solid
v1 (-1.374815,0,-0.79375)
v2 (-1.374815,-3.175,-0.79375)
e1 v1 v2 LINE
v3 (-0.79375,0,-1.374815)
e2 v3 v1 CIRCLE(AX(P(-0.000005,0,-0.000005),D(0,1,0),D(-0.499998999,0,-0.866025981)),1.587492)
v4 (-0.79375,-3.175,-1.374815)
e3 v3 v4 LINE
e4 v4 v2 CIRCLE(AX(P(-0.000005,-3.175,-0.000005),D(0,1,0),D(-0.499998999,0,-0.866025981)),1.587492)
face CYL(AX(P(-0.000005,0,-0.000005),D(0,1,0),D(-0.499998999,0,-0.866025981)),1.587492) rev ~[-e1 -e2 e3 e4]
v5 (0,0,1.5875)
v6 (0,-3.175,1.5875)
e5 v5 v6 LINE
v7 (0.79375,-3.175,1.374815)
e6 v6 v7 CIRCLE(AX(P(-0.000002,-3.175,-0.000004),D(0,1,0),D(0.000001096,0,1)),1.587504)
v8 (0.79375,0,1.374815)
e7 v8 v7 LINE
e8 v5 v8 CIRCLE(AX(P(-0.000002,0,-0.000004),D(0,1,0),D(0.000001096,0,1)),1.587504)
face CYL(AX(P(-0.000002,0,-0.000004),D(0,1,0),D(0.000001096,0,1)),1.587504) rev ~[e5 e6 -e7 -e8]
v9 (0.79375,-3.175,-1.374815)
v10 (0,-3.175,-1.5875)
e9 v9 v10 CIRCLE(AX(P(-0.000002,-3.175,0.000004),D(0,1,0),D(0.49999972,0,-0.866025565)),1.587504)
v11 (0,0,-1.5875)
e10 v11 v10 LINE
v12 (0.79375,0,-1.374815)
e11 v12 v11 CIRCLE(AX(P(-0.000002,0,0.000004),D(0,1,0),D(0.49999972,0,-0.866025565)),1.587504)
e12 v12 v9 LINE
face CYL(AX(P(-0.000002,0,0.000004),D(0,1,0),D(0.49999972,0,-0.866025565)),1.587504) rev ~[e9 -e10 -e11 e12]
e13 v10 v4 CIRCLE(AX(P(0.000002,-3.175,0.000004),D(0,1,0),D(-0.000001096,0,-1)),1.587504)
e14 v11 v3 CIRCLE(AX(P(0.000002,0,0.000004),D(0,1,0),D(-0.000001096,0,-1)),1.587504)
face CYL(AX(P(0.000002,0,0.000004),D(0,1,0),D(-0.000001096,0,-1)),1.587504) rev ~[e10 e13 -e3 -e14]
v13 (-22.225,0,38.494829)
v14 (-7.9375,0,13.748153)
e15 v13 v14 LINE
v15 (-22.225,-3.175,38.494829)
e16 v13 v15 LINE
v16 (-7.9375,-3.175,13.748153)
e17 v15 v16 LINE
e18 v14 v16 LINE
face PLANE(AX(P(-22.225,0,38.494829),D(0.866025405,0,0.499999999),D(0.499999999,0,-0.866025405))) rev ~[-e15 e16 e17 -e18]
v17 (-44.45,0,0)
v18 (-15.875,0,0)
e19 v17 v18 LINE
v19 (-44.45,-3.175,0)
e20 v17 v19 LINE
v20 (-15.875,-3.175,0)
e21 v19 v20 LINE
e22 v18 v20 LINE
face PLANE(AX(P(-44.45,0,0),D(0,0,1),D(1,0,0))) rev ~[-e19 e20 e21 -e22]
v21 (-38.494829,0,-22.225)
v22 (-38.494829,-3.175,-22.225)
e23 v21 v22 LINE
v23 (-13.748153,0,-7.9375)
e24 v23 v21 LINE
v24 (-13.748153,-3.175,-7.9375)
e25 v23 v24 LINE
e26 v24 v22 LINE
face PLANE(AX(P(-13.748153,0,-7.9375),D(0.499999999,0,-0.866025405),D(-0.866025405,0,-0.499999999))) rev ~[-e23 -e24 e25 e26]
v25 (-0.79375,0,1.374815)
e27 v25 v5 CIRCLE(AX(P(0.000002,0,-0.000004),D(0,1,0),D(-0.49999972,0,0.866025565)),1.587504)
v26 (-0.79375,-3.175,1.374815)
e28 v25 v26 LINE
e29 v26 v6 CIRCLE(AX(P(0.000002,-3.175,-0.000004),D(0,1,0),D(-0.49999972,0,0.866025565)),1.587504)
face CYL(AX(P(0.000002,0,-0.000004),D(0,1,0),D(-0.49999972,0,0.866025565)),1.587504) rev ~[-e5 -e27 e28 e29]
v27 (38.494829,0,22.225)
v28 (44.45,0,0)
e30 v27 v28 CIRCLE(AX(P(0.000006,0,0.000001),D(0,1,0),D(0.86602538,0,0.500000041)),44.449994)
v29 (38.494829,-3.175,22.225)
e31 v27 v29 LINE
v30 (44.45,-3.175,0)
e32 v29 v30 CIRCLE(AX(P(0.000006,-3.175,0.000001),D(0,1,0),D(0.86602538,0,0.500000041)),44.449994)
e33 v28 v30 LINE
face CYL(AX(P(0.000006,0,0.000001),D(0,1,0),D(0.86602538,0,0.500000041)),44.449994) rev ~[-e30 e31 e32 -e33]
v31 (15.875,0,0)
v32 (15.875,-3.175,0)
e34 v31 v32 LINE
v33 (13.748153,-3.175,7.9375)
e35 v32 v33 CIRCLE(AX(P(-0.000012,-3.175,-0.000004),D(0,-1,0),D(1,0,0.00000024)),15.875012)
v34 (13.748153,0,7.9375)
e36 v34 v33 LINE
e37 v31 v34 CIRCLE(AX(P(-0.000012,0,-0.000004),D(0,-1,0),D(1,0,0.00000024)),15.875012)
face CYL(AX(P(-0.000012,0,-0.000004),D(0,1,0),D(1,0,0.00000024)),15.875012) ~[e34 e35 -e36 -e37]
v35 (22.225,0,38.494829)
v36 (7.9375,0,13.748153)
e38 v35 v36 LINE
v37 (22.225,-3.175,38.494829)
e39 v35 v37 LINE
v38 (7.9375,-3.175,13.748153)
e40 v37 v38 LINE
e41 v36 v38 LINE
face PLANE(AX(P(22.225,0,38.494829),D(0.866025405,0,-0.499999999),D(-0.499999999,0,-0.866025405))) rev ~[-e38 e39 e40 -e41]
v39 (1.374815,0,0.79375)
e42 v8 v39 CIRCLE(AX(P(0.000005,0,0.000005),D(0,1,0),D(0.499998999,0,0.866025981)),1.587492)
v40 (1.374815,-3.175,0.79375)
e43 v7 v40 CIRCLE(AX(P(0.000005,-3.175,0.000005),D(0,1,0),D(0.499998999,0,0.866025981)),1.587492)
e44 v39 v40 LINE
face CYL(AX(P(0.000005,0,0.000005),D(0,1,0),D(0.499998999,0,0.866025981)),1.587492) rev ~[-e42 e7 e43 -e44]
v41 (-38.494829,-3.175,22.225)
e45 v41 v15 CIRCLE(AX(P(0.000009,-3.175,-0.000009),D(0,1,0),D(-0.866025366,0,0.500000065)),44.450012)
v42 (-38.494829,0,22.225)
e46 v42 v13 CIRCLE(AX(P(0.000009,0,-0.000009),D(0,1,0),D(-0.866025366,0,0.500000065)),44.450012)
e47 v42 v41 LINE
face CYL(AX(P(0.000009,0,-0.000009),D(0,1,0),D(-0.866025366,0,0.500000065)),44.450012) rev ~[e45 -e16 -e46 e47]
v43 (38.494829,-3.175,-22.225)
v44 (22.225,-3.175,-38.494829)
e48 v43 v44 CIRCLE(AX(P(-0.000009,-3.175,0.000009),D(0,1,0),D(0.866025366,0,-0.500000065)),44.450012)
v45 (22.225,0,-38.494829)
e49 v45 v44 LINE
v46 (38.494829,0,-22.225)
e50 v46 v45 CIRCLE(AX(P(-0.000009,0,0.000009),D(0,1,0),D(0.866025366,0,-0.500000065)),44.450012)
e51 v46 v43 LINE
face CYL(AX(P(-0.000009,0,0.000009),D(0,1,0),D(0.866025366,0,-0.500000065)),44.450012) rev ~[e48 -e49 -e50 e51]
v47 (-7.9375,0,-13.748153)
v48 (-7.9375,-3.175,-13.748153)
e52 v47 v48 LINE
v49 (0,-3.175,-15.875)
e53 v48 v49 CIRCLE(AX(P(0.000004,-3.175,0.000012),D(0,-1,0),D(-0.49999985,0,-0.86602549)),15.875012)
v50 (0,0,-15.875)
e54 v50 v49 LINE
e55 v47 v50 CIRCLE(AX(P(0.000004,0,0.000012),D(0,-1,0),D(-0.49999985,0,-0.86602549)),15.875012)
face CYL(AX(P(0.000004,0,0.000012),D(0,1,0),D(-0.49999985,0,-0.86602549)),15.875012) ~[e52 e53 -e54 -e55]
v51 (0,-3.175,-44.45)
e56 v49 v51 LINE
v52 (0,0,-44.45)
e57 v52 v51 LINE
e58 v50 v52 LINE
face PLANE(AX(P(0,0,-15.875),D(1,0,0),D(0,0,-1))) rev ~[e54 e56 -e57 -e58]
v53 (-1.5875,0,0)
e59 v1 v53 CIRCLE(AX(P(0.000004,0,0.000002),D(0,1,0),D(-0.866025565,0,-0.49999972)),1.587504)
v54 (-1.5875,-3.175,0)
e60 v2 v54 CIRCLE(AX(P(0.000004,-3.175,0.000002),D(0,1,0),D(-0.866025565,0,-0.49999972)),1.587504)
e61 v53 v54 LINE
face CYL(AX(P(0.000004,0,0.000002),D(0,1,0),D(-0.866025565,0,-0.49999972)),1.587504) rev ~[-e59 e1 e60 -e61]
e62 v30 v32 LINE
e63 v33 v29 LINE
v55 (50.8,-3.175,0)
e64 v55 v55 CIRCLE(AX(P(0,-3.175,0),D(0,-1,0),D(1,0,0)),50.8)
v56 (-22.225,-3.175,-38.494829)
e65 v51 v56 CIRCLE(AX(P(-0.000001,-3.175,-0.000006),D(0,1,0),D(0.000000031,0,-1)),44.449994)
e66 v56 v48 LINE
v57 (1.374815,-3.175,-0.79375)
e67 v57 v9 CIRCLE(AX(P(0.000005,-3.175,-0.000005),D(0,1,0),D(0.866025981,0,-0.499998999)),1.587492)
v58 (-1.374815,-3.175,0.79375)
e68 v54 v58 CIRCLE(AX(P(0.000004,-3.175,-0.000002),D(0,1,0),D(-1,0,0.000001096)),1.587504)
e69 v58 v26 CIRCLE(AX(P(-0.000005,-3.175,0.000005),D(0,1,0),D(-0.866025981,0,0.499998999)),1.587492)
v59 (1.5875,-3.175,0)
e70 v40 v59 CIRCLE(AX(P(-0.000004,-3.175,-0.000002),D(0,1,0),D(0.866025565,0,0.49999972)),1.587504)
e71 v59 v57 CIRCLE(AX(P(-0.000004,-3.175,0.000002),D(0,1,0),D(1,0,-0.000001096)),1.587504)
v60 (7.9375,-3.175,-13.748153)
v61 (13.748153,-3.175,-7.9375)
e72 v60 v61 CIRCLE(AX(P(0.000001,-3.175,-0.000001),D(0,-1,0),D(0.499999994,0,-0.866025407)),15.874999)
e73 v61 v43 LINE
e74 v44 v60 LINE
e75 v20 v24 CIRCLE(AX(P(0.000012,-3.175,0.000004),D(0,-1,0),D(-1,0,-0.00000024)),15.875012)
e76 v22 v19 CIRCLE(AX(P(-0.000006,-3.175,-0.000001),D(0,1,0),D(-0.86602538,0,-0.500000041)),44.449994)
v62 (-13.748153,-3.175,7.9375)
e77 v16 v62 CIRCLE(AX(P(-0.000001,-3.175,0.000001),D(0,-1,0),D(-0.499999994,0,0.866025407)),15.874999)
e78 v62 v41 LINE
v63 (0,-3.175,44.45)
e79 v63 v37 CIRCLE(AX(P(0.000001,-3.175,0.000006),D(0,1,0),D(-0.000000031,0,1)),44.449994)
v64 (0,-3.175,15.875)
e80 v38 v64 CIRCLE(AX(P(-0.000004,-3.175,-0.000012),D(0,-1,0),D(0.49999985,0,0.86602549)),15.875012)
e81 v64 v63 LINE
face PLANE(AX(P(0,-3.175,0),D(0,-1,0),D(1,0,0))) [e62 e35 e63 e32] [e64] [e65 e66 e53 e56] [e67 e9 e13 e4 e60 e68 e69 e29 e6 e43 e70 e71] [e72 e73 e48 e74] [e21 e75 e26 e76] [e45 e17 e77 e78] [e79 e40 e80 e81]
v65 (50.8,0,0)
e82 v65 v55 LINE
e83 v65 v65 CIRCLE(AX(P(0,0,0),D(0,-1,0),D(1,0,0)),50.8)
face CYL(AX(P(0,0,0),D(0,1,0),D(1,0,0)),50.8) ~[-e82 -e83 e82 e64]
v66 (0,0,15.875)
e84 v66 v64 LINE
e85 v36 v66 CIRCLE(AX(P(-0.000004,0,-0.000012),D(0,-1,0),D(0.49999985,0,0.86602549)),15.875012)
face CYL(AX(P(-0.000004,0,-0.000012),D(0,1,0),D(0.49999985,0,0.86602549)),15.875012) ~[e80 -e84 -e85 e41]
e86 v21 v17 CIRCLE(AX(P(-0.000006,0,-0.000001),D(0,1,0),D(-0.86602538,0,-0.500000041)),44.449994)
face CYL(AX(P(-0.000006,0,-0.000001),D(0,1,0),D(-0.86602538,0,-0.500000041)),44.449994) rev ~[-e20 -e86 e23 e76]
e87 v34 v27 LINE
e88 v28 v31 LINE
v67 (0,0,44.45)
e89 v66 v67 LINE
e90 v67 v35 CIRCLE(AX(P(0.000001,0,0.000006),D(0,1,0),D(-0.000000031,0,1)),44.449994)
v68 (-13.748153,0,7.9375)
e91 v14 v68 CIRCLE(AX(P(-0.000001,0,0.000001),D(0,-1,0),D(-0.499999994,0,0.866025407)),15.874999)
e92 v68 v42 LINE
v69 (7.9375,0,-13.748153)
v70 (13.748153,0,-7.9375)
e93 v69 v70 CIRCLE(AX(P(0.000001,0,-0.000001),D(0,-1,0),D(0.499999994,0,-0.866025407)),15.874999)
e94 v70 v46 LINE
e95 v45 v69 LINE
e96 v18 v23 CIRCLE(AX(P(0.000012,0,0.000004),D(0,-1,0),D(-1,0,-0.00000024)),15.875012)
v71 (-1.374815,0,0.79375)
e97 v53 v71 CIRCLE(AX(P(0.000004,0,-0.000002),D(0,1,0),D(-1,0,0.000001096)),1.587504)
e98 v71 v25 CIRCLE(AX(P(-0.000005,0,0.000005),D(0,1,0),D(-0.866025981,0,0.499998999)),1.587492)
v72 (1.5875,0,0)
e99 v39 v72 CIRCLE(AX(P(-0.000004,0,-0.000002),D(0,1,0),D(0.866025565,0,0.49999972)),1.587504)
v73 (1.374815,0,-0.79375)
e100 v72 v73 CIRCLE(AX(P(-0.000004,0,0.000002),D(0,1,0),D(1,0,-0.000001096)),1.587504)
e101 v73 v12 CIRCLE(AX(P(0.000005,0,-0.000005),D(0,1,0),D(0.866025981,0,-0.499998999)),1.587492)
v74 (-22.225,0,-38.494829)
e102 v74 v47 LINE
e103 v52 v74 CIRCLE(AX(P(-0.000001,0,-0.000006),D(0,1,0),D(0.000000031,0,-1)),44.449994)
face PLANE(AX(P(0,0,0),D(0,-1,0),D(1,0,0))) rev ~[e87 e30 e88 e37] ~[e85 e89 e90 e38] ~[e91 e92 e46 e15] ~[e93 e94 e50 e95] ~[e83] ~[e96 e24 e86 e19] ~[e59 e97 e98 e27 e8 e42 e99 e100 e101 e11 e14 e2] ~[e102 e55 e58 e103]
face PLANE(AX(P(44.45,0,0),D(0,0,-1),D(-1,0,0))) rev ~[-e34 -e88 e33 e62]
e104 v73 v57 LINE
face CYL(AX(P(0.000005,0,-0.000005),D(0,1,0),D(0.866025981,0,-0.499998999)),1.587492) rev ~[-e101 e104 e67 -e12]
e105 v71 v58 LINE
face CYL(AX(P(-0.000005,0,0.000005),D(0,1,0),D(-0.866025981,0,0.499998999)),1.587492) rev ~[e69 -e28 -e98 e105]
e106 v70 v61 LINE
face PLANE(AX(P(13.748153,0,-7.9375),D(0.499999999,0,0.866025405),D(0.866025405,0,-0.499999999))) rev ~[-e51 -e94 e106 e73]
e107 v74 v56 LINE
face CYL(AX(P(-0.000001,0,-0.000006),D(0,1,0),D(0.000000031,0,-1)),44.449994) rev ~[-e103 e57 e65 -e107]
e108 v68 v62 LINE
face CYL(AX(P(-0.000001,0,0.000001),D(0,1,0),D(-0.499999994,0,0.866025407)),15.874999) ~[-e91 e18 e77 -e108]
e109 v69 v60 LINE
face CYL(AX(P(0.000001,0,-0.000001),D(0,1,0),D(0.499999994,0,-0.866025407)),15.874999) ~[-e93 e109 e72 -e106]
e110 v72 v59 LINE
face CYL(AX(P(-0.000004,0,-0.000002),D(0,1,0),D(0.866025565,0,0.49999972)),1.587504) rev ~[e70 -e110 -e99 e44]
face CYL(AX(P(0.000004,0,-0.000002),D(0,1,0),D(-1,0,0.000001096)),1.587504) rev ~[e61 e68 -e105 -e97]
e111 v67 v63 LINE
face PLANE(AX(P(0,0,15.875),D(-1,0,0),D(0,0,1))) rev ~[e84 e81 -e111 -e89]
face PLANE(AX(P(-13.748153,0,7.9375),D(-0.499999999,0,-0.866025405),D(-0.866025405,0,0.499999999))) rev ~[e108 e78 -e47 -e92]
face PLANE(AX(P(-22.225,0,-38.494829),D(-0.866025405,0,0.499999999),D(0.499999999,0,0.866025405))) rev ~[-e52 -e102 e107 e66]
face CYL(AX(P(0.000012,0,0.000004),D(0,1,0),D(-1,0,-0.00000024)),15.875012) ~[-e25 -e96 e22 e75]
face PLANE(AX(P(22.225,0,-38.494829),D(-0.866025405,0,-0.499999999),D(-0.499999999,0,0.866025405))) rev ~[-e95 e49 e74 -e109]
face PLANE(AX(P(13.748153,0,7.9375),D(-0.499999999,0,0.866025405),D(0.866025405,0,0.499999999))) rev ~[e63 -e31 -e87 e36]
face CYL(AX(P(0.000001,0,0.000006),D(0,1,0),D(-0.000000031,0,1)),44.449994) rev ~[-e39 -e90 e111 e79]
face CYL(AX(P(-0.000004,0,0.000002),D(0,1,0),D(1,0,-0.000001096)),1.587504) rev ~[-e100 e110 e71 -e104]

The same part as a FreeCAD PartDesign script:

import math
import FreeCAD as App
import Part
import Sketcher
Q = App.Units.Quantity

doc = App.newDocument("Part")
body = doc.addObject("PartDesign::Body", "Body")

sketch1 = body.newObject("Sketcher::SketchObject", "Sketch")
sketch1.AttachmentSupport = (doc.getObject("XZ_Plane"), [""])
sketch1.MapMode = "FlatFace"
sketch1.addGeometry([
    Part.Circle(App.Vector(0, 0, 0), App.Vector(0, 0, 1), 50.8),
    Part.LineSegment(App.Vector(-22.225, -38.494829, 0), App.Vector(-7.9375, -13.748153, 0)),
    Part.ArcOfCircle(Part.Circle(App.Vector(0.000004, 0.000012, 0), App.Vector(0, 0, 1), 15.875012), math.radians(-119.99999), math.radians(-90.000014)),
    Part.LineSegment(App.Vector(0, -15.875, 0), App.Vector(0, -44.45, 0)),
    Part.ArcOfCircle(Part.Circle(App.Vector(-0.000001, -0.000006, 0), App.Vector(0, 0, 1), 44.449994), math.radians(-120.000003), math.radians(-89.999998)),
    Part.LineSegment(App.Vector(-44.45, 0, 0), App.Vector(-15.875, 0, 0)),
    Part.ArcOfCircle(Part.Circle(App.Vector(0.000012, 0.000004, 0), App.Vector(0, 0, 1), 15.875012), math.radians(-179.999986), math.radians(-150.00001)),
    Part.LineSegment(App.Vector(-13.748153, -7.9375, 0), App.Vector(-38.494829, -22.225, 0)),
    Part.ArcOfCircle(Part.Circle(App.Vector(-0.000006, -0.000001, 0), App.Vector(0, 0, 1), 44.449994), math.radians(179.999998), math.radians(210.000003)),
    Part.LineSegment(App.Vector(22.225, -38.494829, 0), App.Vector(7.9375, -13.748153, 0)),
    Part.ArcOfCircle(Part.Circle(App.Vector(0.000001, -0.000001, 0), App.Vector(0, 0, 1), 15.874999), math.radians(-60), math.radians(-30)),
    Part.LineSegment(App.Vector(13.748153, -7.9375, 0), App.Vector(38.494829, -22.225, 0)),
    Part.ArcOfCircle(Part.Circle(App.Vector(-0.000009, 0.000009, 0), App.Vector(0, 0, 1), 44.450012), math.radians(-59.999996), math.radians(-30.000004)),
    Part.LineSegment(App.Vector(-13.748153, 7.9375, 0), App.Vector(-38.494829, 22.225, 0)),
    Part.ArcOfCircle(Part.Circle(App.Vector(0.000009, -0.000009, 0), App.Vector(0, 0, 1), 44.450012), math.radians(120.000004), math.radians(149.999996)),
    Part.LineSegment(App.Vector(-22.225, 38.494829, 0), App.Vector(-7.9375, 13.748153, 0)),
    Part.ArcOfCircle(Part.Circle(App.Vector(-0.000001, 0.000001, 0), App.Vector(0, 0, 1), 15.874999), math.radians(120), math.radians(150)),
    Part.ArcOfCircle(Part.Circle(App.Vector(0.000005, 0.000005, 0), App.Vector(0, 0, 1), 1.587492), math.radians(29.999934), math.radians(60.000066)),
    Part.ArcOfCircle(Part.Circle(App.Vector(-0.000004, -0.000002, 0), App.Vector(0, 0, 1), 1.587504), math.radians(0.000063), math.radians(29.999981)),
    Part.ArcOfCircle(Part.Circle(App.Vector(-0.000004, 0.000002, 0), App.Vector(0, 0, 1), 1.587504), math.radians(-29.999981), math.radians(-0.000063)),
    Part.ArcOfCircle(Part.Circle(App.Vector(0.000005, -0.000005, 0), App.Vector(0, 0, 1), 1.587492), math.radians(-60.000066), math.radians(-29.999934)),
    Part.ArcOfCircle(Part.Circle(App.Vector(-0.000002, 0.000004, 0), App.Vector(0, 0, 1), 1.587504), math.radians(-89.999937), math.radians(-60.000019)),
    Part.ArcOfCircle(Part.Circle(App.Vector(0.000002, 0.000004, 0), App.Vector(0, 0, 1), 1.587504), math.radians(-119.999981), math.radians(-90.000063)),
    Part.ArcOfCircle(Part.Circle(App.Vector(-0.000005, -0.000005, 0), App.Vector(0, 0, 1), 1.587492), math.radians(-150.000066), math.radians(-119.999934)),
    Part.ArcOfCircle(Part.Circle(App.Vector(0.000004, 0.000002, 0), App.Vector(0, 0, 1), 1.587504), math.radians(-179.999937), math.radians(-150.000019)),
    Part.ArcOfCircle(Part.Circle(App.Vector(0.000004, -0.000002, 0), App.Vector(0, 0, 1), 1.587504), math.radians(150.000019), math.radians(179.999937)),
    Part.ArcOfCircle(Part.Circle(App.Vector(-0.000005, 0.000005, 0), App.Vector(0, 0, 1), 1.587492), math.radians(119.999934), math.radians(150.000066)),
    Part.ArcOfCircle(Part.Circle(App.Vector(0.000002, -0.000004, 0), App.Vector(0, 0, 1), 1.587504), math.radians(90.000063), math.radians(119.999981)),
    Part.ArcOfCircle(Part.Circle(App.Vector(-0.000002, -0.000004, 0), App.Vector(0, 0, 1), 1.587504), math.radians(60.000019), math.radians(89.999937)),
    Part.LineSegment(App.Vector(44.45, 0, 0), App.Vector(15.875, 0, 0)),
    Part.ArcOfCircle(Part.Circle(App.Vector(-0.000012, -0.000004, 0), App.Vector(0, 0, 1), 15.875012), math.radians(0.000014), math.radians(29.99999)),
    Part.LineSegment(App.Vector(13.748153, 7.9375, 0), App.Vector(38.494829, 22.225, 0)),
    Part.ArcOfCircle(Part.Circle(App.Vector(0.000006, 0.000001, 0), App.Vector(0, 0, 1), 44.449994), math.radians(-0.000002), math.radians(30.000003)),
    Part.LineSegment(App.Vector(22.225, 38.494829, 0), App.Vector(7.9375, 13.748153, 0)),
    Part.ArcOfCircle(Part.Circle(App.Vector(-0.000004, -0.000012, 0), App.Vector(0, 0, 1), 15.875012), math.radians(60.00001), math.radians(89.999986)),
    Part.LineSegment(App.Vector(0, 15.875, 0), App.Vector(0, 44.45, 0)),
    Part.ArcOfCircle(Part.Circle(App.Vector(0.000001, 0.000006, 0), App.Vector(0, 0, 1), 44.449994), math.radians(59.999997), math.radians(90.000002)),
], False)
sketch1.addConstraint([
    Sketcher.Constraint("Coincident", 1, 2, 2, 1),
    Sketcher.Constraint("Coincident", 2, 2, 3, 1),
    Sketcher.Constraint("Coincident", 3, 2, 4, 2),
    Sketcher.Constraint("Coincident", 4, 1, 1, 1),
    Sketcher.Constraint("Coincident", 5, 2, 6, 1),
    Sketcher.Constraint("Coincident", 6, 2, 7, 1),
    Sketcher.Constraint("Coincident", 7, 2, 8, 2),
    Sketcher.Constraint("Coincident", 8, 1, 5, 1),
    Sketcher.Constraint("Coincident", 9, 2, 10, 1),
    Sketcher.Constraint("Coincident", 10, 2, 11, 1),
    Sketcher.Constraint("Coincident", 11, 2, 12, 2),
    Sketcher.Constraint("Coincident", 12, 1, 9, 1),
    Sketcher.Constraint("Coincident", 13, 2, 14, 2),
    Sketcher.Constraint("Coincident", 14, 1, 15, 1),
    Sketcher.Constraint("Coincident", 15, 2, 16, 1),
    Sketcher.Constraint("Coincident", 16, 2, 13, 1),
    Sketcher.Constraint("Coincident", 17, 1, 18, 2),
    Sketcher.Constraint("Coincident", 18, 1, 19, 2),
    Sketcher.Constraint("Coincident", 19, 1, 20, 2),
    Sketcher.Constraint("Coincident", 20, 1, 21, 2),
    Sketcher.Constraint("Coincident", 21, 1, 22, 2),
    Sketcher.Constraint("Coincident", 22, 1, 23, 2),
    Sketcher.Constraint("Coincident", 23, 1, 24, 2),
    Sketcher.Constraint("Coincident", 24, 1, 25, 2),
    Sketcher.Constraint("Coincident", 25, 1, 26, 2),
    Sketcher.Constraint("Coincident", 26, 1, 27, 2),
    Sketcher.Constraint("Coincident", 27, 1, 28, 2),
    Sketcher.Constraint("Coincident", 28, 1, 17, 2),
    Sketcher.Constraint("Coincident", 29, 2, 30, 1),
    Sketcher.Constraint("Coincident", 30, 2, 31, 1),
    Sketcher.Constraint("Coincident", 31, 2, 32, 2),
    Sketcher.Constraint("Coincident", 32, 1, 29, 1),
    Sketcher.Constraint("Coincident", 33, 2, 34, 1),
    Sketcher.Constraint("Coincident", 34, 2, 35, 1),
    Sketcher.Constraint("Coincident", 35, 2, 36, 2),
    Sketcher.Constraint("Coincident", 36, 1, 33, 1),
    Sketcher.Constraint("Vertical", 3),
    Sketcher.Constraint("Horizontal", 5),
    Sketcher.Constraint("Horizontal", 29),
    Sketcher.Constraint("Vertical", 35),
    Sketcher.Constraint("Coincident", 0, 3, -1, 1),
    Sketcher.Constraint("Coincident", 4, 3, -1, 1),
    Sketcher.Constraint("Coincident", 8, 3, -1, 1),
    Sketcher.Constraint("Coincident", 10, 3, -1, 1),
    Sketcher.Constraint("Coincident", 16, 3, -1, 1),
    Sketcher.Constraint("Coincident", 17, 3, -1, 1),
    Sketcher.Constraint("Coincident", 18, 3, -1, 1),
    Sketcher.Constraint("Coincident", 19, 3, -1, 1),
    Sketcher.Constraint("Coincident", 20, 3, -1, 1),
    Sketcher.Constraint("Coincident", 21, 3, -1, 1),
    Sketcher.Constraint("Coincident", 22, 3, -1, 1),
    Sketcher.Constraint("Coincident", 23, 3, -1, 1),
    Sketcher.Constraint("Coincident", 24, 3, -1, 1),
    Sketcher.Constraint("Coincident", 25, 3, -1, 1),
    Sketcher.Constraint("Coincident", 26, 3, -1, 1),
    Sketcher.Constraint("Coincident", 27, 3, -1, 1),
    Sketcher.Constraint("Coincident", 32, 3, -1, 1),
    Sketcher.Constraint("Coincident", 36, 3, -1, 1),
    Sketcher.Constraint("Coincident", 30, 3, 8, 3),
    Sketcher.Constraint("Coincident", 34, 3, 4, 3),
    Sketcher.Constraint("PointOnObject", 28, 3, -2),
    Sketcher.Constraint("PointOnObject", 2, 2, -2),
    Sketcher.Constraint("PointOnObject", 5, 2, -1),
    Sketcher.Constraint("PointOnObject", 18, 1, -1),
    Sketcher.Constraint("PointOnObject", 21, 1, -2),
    Sketcher.Constraint("PointOnObject", 24, 1, -1),
    Sketcher.Constraint("PointOnObject", 27, 1, -2),
    Sketcher.Constraint("PointOnObject", 29, 2, -1),
    Sketcher.Constraint("PointOnObject", 34, 2, -2),
    Sketcher.Constraint("Diameter", 0, Q("4 in")),
    Sketcher.Constraint("Radius", 10, Q("0.625 in")),
    Sketcher.Constraint("Radius", 16, Q("0.625 in")),
    Sketcher.Constraint("Radius", 18, Q("0.0625002 in")),
    Sketcher.Constraint("DistanceX", 5, 1, 5, 2, Q("1.125 in")),
    Sketcher.Constraint("DistanceX", 29, 2, 29, 1, Q("1.125 in")),
    Sketcher.Constraint("DistanceY", 3, 2, 3, 1, Q("1.125 in")),
    Sketcher.Constraint("DistanceY", 35, 1, 35, 2, Q("1.125 in")),
    Sketcher.Constraint("DistanceY", 3, 2, -1, 1, Q("1.75 in")),
    Sketcher.Constraint("DistanceX", 8, 1, -1, 1, Q("1.75 in")),
    Sketcher.Constraint("DistanceX", -1, 1, 32, 1, Q("1.75 in")),
    Sketcher.Constraint("DistanceY", -1, 1, 35, 2, Q("1.75 in")),
    Sketcher.Constraint("Distance", 1, Q("1.125 in")),
    Sketcher.Constraint("Distance", 7, Q("1.125 in")),
    Sketcher.Constraint("Distance", 9, Q("1.125 in")),
    Sketcher.Constraint("Distance", 11, Q("1.125 in")),
    Sketcher.Constraint("Distance", 13, Q("1.125 in")),
    Sketcher.Constraint("Distance", 15, Q("1.125 in")),
    Sketcher.Constraint("DistanceX", 1, 2, -1, 1, Q("0.3125 in")),
    Sketcher.Constraint("DistanceX", 4, 1, -1, 1, Q("0.875 in")),
    Sketcher.Constraint("DistanceY", 6, 2, -1, 1, Q("0.3125 in")),
    Sketcher.Constraint("DistanceY", 7, 2, -1, 1, Q("0.875 in")),
    Sketcher.Constraint("DistanceX", -1, 1, 9, 2, Q("0.3125 in")),
    Sketcher.Constraint("DistanceY", 10, 2, -1, 1, Q("0.3125 in")),
    Sketcher.Constraint("DistanceY", 11, 2, -1, 1, Q("0.875 in")),
    Sketcher.Constraint("DistanceX", -1, 1, 12, 1, Q("0.875 in")),
    Sketcher.Constraint("DistanceY", -1, 1, 13, 2, Q("0.875 in")),
    Sketcher.Constraint("DistanceX", 14, 1, -1, 1, Q("0.875 in")),
    Sketcher.Constraint("DistanceX", 15, 2, -1, 1, Q("0.3125 in")),
    Sketcher.Constraint("DistanceY", -1, 1, 16, 2, Q("0.3125 in")),
    Sketcher.Constraint("DistanceY", -1, 1, 17, 1, Q("0.03125 in")),
    Sketcher.Constraint("DistanceY", 19, 1, -1, 1, Q("0.03125 in")),
    Sketcher.Constraint("DistanceX", -1, 1, 20, 1, Q("0.03125 in")),
    Sketcher.Constraint("DistanceX", 22, 1, -1, 1, Q("0.03125 in")),
    Sketcher.Constraint("DistanceY", 23, 1, -1, 1, Q("0.03125 in")),
    Sketcher.Constraint("DistanceY", -1, 1, 25, 1, Q("0.03125 in")),
    Sketcher.Constraint("DistanceX", 26, 1, -1, 1, Q("0.03125 in")),
    Sketcher.Constraint("DistanceX", -1, 1, 28, 1, Q("0.03125 in")),
    Sketcher.Constraint("DistanceY", -1, 1, 30, 2, Q("0.3125 in")),
    Sketcher.Constraint("DistanceY", -1, 1, 31, 2, Q("0.875 in")),
    Sketcher.Constraint("DistanceX", -1, 1, 33, 2, Q("0.3125 in")),
    Sketcher.Constraint("DistanceX", -1, 1, 36, 1, Q("0.875 in")),
    Sketcher.Constraint("Radius", 12, 44.450012),
    Sketcher.Constraint("Radius", 14, 44.450012),
    Sketcher.Constraint("Radius", 2, 15.875012),
    Sketcher.Constraint("Radius", 6, 15.875012),
])
pad1 = body.newObject("PartDesign::Pad", "Pad")
pad1.Profile = sketch1
pad1.Length = Q("0.125 in")

doc.recompute()
